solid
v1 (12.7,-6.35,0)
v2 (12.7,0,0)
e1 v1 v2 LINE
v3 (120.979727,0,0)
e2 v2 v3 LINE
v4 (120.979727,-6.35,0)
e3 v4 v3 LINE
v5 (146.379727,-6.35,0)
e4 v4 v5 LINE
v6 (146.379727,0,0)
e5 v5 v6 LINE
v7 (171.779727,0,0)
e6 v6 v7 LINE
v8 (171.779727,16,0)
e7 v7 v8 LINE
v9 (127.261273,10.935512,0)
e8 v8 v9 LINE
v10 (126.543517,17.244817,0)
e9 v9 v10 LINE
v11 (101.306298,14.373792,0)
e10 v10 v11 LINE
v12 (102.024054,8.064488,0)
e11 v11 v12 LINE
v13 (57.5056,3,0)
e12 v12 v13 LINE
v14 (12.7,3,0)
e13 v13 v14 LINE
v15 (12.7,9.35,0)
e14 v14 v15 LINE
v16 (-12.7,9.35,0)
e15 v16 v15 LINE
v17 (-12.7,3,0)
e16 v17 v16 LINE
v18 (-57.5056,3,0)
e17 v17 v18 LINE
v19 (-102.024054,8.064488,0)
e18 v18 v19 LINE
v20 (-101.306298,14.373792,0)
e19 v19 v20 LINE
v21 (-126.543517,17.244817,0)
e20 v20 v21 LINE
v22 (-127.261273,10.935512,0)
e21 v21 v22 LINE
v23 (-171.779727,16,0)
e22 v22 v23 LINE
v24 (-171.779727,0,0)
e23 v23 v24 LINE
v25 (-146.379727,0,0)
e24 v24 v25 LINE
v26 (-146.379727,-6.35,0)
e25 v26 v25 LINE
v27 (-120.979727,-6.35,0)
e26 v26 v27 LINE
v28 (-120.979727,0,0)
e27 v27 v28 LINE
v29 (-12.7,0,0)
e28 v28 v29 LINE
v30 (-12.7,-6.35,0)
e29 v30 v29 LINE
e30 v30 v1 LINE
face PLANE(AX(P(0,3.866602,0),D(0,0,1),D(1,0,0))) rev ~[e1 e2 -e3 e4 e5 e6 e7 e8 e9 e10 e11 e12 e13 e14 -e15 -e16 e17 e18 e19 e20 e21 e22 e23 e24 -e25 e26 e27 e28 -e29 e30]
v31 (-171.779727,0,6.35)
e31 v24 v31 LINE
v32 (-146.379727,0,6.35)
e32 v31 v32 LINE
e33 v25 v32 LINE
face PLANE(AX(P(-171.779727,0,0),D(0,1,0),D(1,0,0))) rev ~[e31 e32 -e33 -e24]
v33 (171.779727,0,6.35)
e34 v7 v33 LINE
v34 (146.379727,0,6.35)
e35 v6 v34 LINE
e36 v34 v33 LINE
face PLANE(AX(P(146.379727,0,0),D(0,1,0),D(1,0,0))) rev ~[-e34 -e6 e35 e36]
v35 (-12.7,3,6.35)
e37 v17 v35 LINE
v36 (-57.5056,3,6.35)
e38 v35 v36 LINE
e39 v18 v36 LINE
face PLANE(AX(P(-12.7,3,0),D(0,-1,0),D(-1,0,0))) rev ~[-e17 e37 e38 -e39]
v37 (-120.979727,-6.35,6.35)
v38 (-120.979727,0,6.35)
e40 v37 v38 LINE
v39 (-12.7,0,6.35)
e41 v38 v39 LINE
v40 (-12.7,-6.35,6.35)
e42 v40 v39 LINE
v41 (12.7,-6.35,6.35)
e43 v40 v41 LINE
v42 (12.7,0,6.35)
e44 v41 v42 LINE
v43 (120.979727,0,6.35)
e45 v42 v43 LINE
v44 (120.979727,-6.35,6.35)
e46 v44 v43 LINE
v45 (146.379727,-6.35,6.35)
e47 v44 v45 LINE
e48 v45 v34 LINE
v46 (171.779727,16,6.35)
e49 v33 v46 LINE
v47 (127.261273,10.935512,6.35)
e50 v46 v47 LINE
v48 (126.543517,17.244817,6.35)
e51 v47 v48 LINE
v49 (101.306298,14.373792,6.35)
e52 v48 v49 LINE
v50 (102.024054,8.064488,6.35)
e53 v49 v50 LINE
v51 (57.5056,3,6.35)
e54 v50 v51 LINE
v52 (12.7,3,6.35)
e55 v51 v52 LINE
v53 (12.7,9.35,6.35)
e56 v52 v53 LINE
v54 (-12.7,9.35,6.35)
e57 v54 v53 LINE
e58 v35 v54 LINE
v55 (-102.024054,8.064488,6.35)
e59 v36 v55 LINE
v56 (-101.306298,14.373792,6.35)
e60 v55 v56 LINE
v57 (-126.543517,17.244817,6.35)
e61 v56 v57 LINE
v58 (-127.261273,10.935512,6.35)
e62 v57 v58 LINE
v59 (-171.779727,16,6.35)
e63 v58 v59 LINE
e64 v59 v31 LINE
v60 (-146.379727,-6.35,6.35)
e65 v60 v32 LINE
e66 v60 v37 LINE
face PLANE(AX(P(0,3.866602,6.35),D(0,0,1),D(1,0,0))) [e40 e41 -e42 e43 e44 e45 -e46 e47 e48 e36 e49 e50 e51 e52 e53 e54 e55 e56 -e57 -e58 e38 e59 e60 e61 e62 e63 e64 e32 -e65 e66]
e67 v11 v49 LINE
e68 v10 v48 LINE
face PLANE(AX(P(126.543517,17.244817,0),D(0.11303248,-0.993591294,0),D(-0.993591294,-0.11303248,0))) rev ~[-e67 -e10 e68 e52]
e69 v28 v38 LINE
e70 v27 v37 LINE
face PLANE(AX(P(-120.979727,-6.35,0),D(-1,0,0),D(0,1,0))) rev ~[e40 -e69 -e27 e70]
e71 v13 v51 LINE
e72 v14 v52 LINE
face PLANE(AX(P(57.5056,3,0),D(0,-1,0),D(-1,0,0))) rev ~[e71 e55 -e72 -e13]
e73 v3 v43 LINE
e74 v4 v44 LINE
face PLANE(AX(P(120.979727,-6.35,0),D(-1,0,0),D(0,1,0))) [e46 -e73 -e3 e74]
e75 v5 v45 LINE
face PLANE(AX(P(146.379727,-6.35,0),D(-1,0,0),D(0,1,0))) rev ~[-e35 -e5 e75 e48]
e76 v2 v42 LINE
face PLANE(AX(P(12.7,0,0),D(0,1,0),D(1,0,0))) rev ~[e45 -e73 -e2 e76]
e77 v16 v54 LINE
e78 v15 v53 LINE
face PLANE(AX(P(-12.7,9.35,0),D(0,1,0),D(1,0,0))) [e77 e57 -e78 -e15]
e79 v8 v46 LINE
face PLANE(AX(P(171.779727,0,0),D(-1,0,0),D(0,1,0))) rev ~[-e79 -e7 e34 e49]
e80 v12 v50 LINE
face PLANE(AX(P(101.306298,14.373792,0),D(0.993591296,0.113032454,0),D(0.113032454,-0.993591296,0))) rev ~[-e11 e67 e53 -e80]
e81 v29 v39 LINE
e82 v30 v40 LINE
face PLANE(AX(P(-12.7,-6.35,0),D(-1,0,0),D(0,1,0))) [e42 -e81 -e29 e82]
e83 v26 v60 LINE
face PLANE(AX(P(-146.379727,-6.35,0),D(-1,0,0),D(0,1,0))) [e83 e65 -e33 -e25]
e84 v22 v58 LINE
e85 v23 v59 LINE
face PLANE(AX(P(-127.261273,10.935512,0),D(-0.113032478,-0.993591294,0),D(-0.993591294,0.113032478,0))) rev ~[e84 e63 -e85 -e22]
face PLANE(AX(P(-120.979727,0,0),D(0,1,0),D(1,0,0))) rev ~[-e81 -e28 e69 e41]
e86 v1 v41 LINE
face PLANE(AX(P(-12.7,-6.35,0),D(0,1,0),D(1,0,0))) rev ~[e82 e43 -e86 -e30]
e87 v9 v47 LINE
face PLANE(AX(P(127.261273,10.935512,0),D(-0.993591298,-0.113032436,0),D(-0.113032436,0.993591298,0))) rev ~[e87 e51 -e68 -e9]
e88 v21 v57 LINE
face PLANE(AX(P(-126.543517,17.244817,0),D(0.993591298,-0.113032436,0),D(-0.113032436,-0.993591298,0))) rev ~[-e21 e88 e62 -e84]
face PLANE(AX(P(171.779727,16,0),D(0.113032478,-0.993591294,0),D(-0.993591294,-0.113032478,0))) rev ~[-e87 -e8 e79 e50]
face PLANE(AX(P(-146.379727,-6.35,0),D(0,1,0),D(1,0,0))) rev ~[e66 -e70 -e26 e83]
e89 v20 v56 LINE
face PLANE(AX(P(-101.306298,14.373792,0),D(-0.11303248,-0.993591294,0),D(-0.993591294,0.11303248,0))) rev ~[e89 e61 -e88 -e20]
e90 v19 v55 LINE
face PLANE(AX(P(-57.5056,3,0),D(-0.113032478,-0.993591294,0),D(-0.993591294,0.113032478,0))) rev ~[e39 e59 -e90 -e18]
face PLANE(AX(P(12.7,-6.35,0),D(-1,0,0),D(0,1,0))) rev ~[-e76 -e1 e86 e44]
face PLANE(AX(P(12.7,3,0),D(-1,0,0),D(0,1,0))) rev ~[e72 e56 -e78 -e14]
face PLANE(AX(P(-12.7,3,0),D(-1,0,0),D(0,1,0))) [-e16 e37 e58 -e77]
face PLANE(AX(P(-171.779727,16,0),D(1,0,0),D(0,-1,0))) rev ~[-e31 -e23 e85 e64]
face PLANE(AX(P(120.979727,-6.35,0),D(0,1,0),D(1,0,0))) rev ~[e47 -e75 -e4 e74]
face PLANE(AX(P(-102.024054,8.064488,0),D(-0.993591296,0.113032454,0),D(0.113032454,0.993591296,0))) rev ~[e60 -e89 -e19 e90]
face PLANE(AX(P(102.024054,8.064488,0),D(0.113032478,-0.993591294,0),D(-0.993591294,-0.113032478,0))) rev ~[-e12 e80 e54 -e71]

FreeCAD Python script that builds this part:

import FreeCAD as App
import Part
import Sketcher

V = App.Vector
Q = App.Units.Quantity


def add_polygon(sketch, points):
    """Adds a closed chain of lines whose ends are joined by coincident constraints."""
    first, n = sketch.GeometryCount, len(points)
    for a, b in zip(points, points[1:] + points[:1]):
        sketch.addGeometry(Part.LineSegment(App.Vector(*a, 0), App.Vector(*b, 0)), False)
    for i in range(n):
        sketch.addConstraint(Sketcher.Constraint("Coincident", first + i, 2, first + (i + 1) % n, 1))

doc = App.newDocument("Part")
body = doc.addObject("PartDesign::Body", "Body")

# Sketch on XY plane
sketch1 = body.newObject("Sketcher::SketchObject", "Sketch")
sketch1.AttachmentSupport = (doc.getObject("XY_Plane"), [""])
sketch1.MapMode = "FlatFace"
add_polygon(sketch1, [(-172, 16), (-172, 0), (-146, 0), (-146, -6), (-121, -6), (-121, 0), (-13, 0), (-13, -6), (13, -6), (13, 0), (121, 0), (121, -6), (146, -6), (146, 0), (172, 0), (172, 16), (127, 11), (127, 17), (101, 14), (102, 8), (58, 3), (13, 3), (13, 9), (-13, 9), (-13, 3), (-58, 3), (-102, 8), (-101, 14), (-127, 17), (-127, 11)])  # lines 0-29
sketch1.addConstraint([
    Sketcher.Constraint("Vertical", 0),
    Sketcher.Constraint("Horizontal", 1),
    Sketcher.Constraint("Vertical", 2),
    Sketcher.Constraint("Horizontal", 3),
    Sketcher.Constraint("Vertical", 4),
    Sketcher.Constraint("Horizontal", 5),
    Sketcher.Constraint("Vertical", 6),
    Sketcher.Constraint("Horizontal", 7),
    Sketcher.Constraint("Vertical", 8),
    Sketcher.Constraint("Horizontal", 9),
    Sketcher.Constraint("Vertical", 10),
    Sketcher.Constraint("Horizontal", 11),
    Sketcher.Constraint("Vertical", 12),
    Sketcher.Constraint("Horizontal", 13),
    Sketcher.Constraint("Vertical", 14),
    Sketcher.Constraint("Horizontal", 20),
    Sketcher.Constraint("Vertical", 21),
    Sketcher.Constraint("Horizontal", 22),
    Sketcher.Constraint("Vertical", 23),
    Sketcher.Constraint("Horizontal", 24),
    Sketcher.Constraint("Symmetric", 5, 2, 8, 2, -1, 1),
    Sketcher.Constraint("Symmetric", 1, 2, 12, 2, -1, 1),
    Sketcher.Constraint("Symmetric", 4, 2, 9, 2, -2),
    Sketcher.Constraint("Symmetric", 0, 2, 13, 2, -2),
    Sketcher.Constraint("Symmetric", 20, 2, 23, 2, -2),
    Sketcher.Constraint("Symmetric", 18, 2, 25, 2, -2),
    Sketcher.Constraint("Symmetric", 17, 2, 26, 2, -2),
    Sketcher.Constraint("Symmetric", 16, 2, 27, 2, -2),
    Sketcher.Constraint("Symmetric", 15, 2, 28, 2, -2),
    Sketcher.Constraint("Perpendicular", 15, 16),
    Sketcher.Constraint("Perpendicular", 16, 17),
    Sketcher.Constraint("Perpendicular", 17, 18),
    Sketcher.Constraint("Perpendicular", 18, 19),
    Sketcher.Constraint("Perpendicular", 25, 26),
    Sketcher.Constraint("Perpendicular", 28, 29),
    Sketcher.Constraint("Horizontal", 3, 2, 6, 2),
    Sketcher.Constraint("Horizontal", 7, 2, 10, 2),
    Sketcher.Constraint("Vertical", 8, 2, 20, 2),
    Sketcher.Constraint("Equal", 1, 3),
    Sketcher.Constraint("Equal", 3, 7),
    Sketcher.Constraint("Equal", 12, 21),
    Sketcher.Constraint("Equal", 16, 18),
    Sketcher.Constraint("Equal", 15, 19),
    Sketcher.Constraint("DistanceX", 1, 1, 1, 2, Q("1 in")),
    Sketcher.Constraint("Distance", 17, Q("1 in")),
    Sketcher.Constraint("DistanceY", 2, 2, 2, 1, Q("0.25 in")),
    Sketcher.Constraint("Distance", 16, Q("0.25 in")),
    Sketcher.Constraint("DistanceX", 20, 2, 20, 1, Q("1.764 in")),
    Sketcher.Constraint("Distance", 15, Q("1.764 in")),
    Sketcher.Constraint("DistanceY", 0, 2, 0, 1, 16.0),
    Sketcher.Constraint("DistanceX", -1, 1, 17, 2, 101.306298),
])
pad1 = body.newObject("PartDesign::Pad", "Pad")
pad1.Profile = sketch1
pad1.Length = Q("0.25 in")

doc.recompute()
